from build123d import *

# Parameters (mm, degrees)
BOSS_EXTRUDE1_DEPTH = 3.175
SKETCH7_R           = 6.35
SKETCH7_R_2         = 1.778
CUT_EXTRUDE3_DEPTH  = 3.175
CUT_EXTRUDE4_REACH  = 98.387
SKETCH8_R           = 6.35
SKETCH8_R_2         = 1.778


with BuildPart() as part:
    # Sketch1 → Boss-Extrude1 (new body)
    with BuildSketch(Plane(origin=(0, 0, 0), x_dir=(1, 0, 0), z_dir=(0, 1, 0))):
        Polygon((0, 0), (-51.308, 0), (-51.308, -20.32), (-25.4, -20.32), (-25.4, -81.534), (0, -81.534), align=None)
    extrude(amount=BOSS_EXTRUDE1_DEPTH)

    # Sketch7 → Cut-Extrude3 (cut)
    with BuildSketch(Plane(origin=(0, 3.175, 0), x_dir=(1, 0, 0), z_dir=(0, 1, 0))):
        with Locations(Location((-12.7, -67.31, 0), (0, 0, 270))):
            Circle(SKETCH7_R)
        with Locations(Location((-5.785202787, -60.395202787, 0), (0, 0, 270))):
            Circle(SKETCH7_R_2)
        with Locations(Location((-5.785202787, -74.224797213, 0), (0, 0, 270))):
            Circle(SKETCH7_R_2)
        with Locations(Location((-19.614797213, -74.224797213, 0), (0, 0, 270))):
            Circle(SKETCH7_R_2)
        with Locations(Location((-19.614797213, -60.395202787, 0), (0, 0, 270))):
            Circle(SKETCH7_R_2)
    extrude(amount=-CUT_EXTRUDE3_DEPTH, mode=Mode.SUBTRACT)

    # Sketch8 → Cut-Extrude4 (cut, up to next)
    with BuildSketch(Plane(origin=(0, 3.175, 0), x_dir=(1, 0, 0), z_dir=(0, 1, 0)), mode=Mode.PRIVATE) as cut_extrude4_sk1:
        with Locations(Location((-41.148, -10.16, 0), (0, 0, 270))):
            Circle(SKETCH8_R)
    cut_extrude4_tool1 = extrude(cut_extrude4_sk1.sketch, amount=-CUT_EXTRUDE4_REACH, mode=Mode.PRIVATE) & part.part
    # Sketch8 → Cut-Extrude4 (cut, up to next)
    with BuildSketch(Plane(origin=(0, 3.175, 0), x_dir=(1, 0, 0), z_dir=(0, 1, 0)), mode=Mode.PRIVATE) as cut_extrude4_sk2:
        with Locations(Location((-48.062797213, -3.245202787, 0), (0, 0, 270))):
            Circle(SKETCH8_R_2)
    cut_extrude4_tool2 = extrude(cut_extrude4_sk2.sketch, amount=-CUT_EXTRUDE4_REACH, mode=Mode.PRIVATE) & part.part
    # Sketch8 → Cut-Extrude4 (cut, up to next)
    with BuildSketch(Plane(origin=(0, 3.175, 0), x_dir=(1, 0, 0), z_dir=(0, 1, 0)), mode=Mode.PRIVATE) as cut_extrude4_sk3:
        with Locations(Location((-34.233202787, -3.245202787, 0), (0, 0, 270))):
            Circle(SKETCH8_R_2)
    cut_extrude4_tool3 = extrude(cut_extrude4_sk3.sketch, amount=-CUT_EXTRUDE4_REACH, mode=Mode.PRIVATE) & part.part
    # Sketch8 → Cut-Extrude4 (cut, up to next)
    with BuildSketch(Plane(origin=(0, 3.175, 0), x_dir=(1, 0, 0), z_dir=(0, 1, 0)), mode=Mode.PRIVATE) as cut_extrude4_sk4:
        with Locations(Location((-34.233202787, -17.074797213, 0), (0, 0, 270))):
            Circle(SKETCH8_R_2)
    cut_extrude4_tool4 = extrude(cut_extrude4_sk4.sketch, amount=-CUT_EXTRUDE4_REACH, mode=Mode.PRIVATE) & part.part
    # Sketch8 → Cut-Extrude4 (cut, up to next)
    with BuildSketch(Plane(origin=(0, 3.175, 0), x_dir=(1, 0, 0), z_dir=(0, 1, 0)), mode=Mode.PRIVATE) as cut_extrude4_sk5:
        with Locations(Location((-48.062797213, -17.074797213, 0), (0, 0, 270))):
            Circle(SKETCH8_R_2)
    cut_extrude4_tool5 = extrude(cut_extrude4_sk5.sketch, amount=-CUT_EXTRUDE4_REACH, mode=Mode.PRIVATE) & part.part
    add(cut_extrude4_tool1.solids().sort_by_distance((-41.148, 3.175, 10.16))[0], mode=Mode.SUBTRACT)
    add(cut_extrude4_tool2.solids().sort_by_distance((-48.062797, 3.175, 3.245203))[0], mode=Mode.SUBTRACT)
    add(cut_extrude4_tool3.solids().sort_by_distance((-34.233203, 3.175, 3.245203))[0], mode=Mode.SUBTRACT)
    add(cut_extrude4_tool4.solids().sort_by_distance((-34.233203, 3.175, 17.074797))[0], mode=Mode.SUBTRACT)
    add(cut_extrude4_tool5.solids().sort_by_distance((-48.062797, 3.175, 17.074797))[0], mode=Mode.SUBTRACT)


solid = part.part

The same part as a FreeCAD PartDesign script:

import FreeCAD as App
import Part
import Sketcher

V = App.Vector
Q = App.Units.Quantity

doc = App.newDocument("Part")
body = doc.addObject("PartDesign::Body", "Body")

# Sketch on XZ plane
sketch1 = body.newObject("Sketcher::SketchObject", "Sketch")
sketch1.AttachmentSupport = (doc.getObject("XZ_Plane"), [""])
sketch1.MapMode = "FlatFace"
sketch1.addGeometry([
    Part.LineSegment(V(0, 0, 0), V(-51.308, 0, 0)),  # 0
    Part.LineSegment(V(-51.308, 0, 0), V(-51.308, 20.32, 0)),  # 1
    Part.LineSegment(V(-51.308, 20.32, 0), V(-25.4, 20.32, 0)),  # 2
    Part.LineSegment(V(-25.4, 20.32, 0), V(-25.4, 81.534, 0)),  # 3
    Part.LineSegment(V(-25.4, 81.534, 0), V(0, 81.534, 0)),  # 4
    Part.LineSegment(V(0, 81.534, 0), V(0, 0, 0)),  # 5
], False)
sketch1.addConstraint([
    Sketcher.Constraint("Coincident", 0, 2, 1, 1),
    Sketcher.Constraint("Coincident", 1, 2, 2, 1),
    Sketcher.Constraint("Coincident", 2, 2, 3, 1),
    Sketcher.Constraint("Coincident", 3, 2, 4, 1),
    Sketcher.Constraint("Coincident", 4, 2, 5, 1),
    Sketcher.Constraint("Coincident", 5, 2, 0, 1),
    Sketcher.Constraint("Horizontal", 0),
    Sketcher.Constraint("Vertical", 1),
    Sketcher.Constraint("Horizontal", 2),
    Sketcher.Constraint("Vertical", 3),
    Sketcher.Constraint("Horizontal", 4),
    Sketcher.Constraint("Vertical", 5),
    Sketcher.Constraint("Coincident", 5, 2, -1, 1),
    Sketcher.Constraint("DistanceX", 4, 1, 4, 2, Q("1 in")),
    Sketcher.Constraint("DistanceY", 1, 1, 1, 2, Q("0.8 in")),
    Sketcher.Constraint("DistanceX", 0, 2, 0, 1, Q("2.02 in")),
    Sketcher.Constraint("DistanceY", 3, 1, 3, 2, Q("2.41 in")),
])
pad1 = body.newObject("PartDesign::Pad", "Pad")
pad1.Profile = sketch1
pad1.Length = Q("0.125 in")
pad1.Reversed = True

# Sketch on XZ plane
sketch2 = body.newObject("Sketcher::SketchObject", "Sketch001")
sketch2.AttachmentSupport = (doc.getObject("XZ_Plane"), [""])
sketch2.MapMode = "FlatFace"
sketch2.AttachmentOffset = App.Placement(V(0, 0, -0.125 * 25.4), App.Rotation())
sketch2.addGeometry([
    Part.Circle(V(-12.7, 67.31, 0), V(0, 0, 1), 6.35),  # 0
    Part.Circle(V(-5.785203, 60.395203, 0), V(0, 0, 1), 1.778),  # 1
    Part.Circle(V(-5.785203, 74.224797, 0), V(0, 0, 1), 1.778),  # 2
    Part.Circle(V(-19.614797, 74.224797, 0), V(0, 0, 1), 1.778),  # 3
    Part.Circle(V(-19.614797, 60.395203, 0), V(0, 0, 1), 1.778),  # 4
], False)
sketch2.addConstraint([
    Sketcher.Constraint("Equal", 1, 2),
    Sketcher.Constraint("Equal", 2, 3),
    Sketcher.Constraint("Equal", 3, 4),
    Sketcher.Constraint("Horizontal", 2, 3, 3, 3),
    Sketcher.Constraint("Horizontal", 1, 3, 4, 3),
    Sketcher.Constraint("Vertical", 1, 3, 2, 3),
    Sketcher.Constraint("Vertical", 3, 3, 4, 3),
    Sketcher.Constraint("Diameter", 0, Q("0.5 in")),
    Sketcher.Constraint("Diameter", 1, Q("0.14 in")),
    Sketcher.Constraint("DistanceX", 0, 3, -1, 1, Q("0.5 in")),
    Sketcher.Constraint("DistanceY", -1, 1, 0, 3, Q("2.65 in")),
    Sketcher.Constraint("DistanceX", 1, 3, -1, 1, Q("5.785203 mm")),
    Sketcher.Constraint("DistanceY", -1, 1, 1, 3, Q("60.395203 mm")),
    Sketcher.Constraint("DistanceY", -1, 1, 2, 3, Q("74.224797 mm")),
    Sketcher.Constraint("DistanceX", 3, 3, -1, 1, Q("19.614797 mm")),
])
pocket1 = body.newObject("PartDesign::Pocket", "Pocket")
pocket1.Profile = sketch2
pocket1.Length = Q("0.125 in")
pocket1.Reversed = True

# Sketch on XZ plane
sketch3 = body.newObject("Sketcher::SketchObject", "Sketch002")
sketch3.AttachmentSupport = (doc.getObject("XZ_Plane"), [""])
sketch3.MapMode = "FlatFace"
sketch3.AttachmentOffset = App.Placement(V(0, 0, -0.125 * 25.4), App.Rotation())
sketch3.addGeometry(Part.Circle(V(-41.148, 10.16, 0), V(0, 0, 1), 6.35), False)
sketch3.addConstraint([
    Sketcher.Constraint("Diameter", 0, Q("0.5 in")),
    Sketcher.Constraint("DistanceY", -1, 1, 0, 3, Q("0.4 in")),
    Sketcher.Constraint("DistanceX", 0, 3, -1, 1, Q("1.62 in")),
])
pocket2 = body.newObject("PartDesign::Pocket", "Pocket001")
pocket2.Profile = sketch3
pocket2.Type = "UpToFirst"
pocket2.Reversed = True

# Sketch on XZ plane
sketch4 = body.newObject("Sketcher::SketchObject", "Sketch003")
sketch4.AttachmentSupport = (doc.getObject("XZ_Plane"), [""])
sketch4.MapMode = "FlatFace"
sketch4.AttachmentOffset = App.Placement(V(0, 0, -0.125 * 25.4), App.Rotation())
sketch4.addGeometry(Part.Circle(V(-48.062797, 3.245203, 0), V(0, 0, 1), 1.778), False)
sketch4.addConstraint([
    Sketcher.Constraint("Diameter", 0, Q("0.14 in")),
    Sketcher.Constraint("DistanceX", 0, 3, -1, 1, Q("48.062797 mm")),
    Sketcher.Constraint("DistanceY", -1, 1, 0, 3, Q("3.245203 mm")),
])
pocket3 = body.newObject("PartDesign::Pocket", "Pocket002")
pocket3.Profile = sketch4
pocket3.Type = "UpToFirst"
pocket3.Reversed = True

# Sketch on XZ plane
sketch5 = body.newObject("Sketcher::SketchObject", "Sketch004")
sketch5.AttachmentSupport = (doc.getObject("XZ_Plane"), [""])
sketch5.MapMode = "FlatFace"
sketch5.AttachmentOffset = App.Placement(V(0, 0, -0.125 * 25.4), App.Rotation())
sketch5.addGeometry(Part.Circle(V(-34.233203, 3.245203, 0), V(0, 0, 1), 1.778), False)
sketch5.addConstraint([
    Sketcher.Constraint("Diameter", 0, Q("0.14 in")),
    Sketcher.Constraint("DistanceX", 0, 3, -1, 1, Q("34.233203 mm")),
    Sketcher.Constraint("DistanceY", -1, 1, 0, 3, Q("3.245203 mm")),
])
pocket4 = body.newObject("PartDesign::Pocket", "Pocket003")
pocket4.Profile = sketch5
pocket4.Type = "UpToFirst"
pocket4.Reversed = True

# Sketch on XZ plane
sketch6 = body.newObject("Sketcher::SketchObject", "Sketch005")
sketch6.AttachmentSupport = (doc.getObject("XZ_Plane"), [""])
sketch6.MapMode = "FlatFace"
sketch6.AttachmentOffset = App.Placement(V(0, 0, -0.125 * 25.4), App.Rotation())
sketch6.addGeometry(Part.Circle(V(-34.233203, 17.074797, 0), V(0, 0, 1), 1.778), False)
sketch6.addConstraint([
    Sketcher.Constraint("Diameter", 0, Q("0.14 in")),
    Sketcher.Constraint("DistanceX", 0, 3, -1, 1, Q("34.233203 mm")),
    Sketcher.Constraint("DistanceY", -1, 1, 0, 3, Q("17.074797 mm")),
])
pocket5 = body.newObject("PartDesign::Pocket", "Pocket004")
pocket5.Profile = sketch6
pocket5.Type = "UpToFirst"
pocket5.Reversed = True

# Sketch on XZ plane
sketch7 = body.newObject("Sketcher::SketchObject", "Sketch006")
sketch7.AttachmentSupport = (doc.getObject("XZ_Plane"), [""])
sketch7.MapMode = "FlatFace"
sketch7.AttachmentOffset = App.Placement(V(0, 0, -0.125 * 25.4), App.Rotation())
sketch7.addGeometry(Part.Circle(V(-48.062797, 17.074797, 0), V(0, 0, 1), 1.778), False)
sketch7.addConstraint([
    Sketcher.Constraint("Diameter", 0, Q("0.14 in")),
    Sketcher.Constraint("DistanceX", 0, 3, -1, 1, Q("48.062797 mm")),
    Sketcher.Constraint("DistanceY", -1, 1, 0, 3, Q("17.074797 mm")),
])
pocket6 = body.newObject("PartDesign::Pocket", "Pocket005")
pocket6.Profile = sketch7
pocket6.Type = "UpToFirst"
pocket6.Reversed = True

doc.recompute()
